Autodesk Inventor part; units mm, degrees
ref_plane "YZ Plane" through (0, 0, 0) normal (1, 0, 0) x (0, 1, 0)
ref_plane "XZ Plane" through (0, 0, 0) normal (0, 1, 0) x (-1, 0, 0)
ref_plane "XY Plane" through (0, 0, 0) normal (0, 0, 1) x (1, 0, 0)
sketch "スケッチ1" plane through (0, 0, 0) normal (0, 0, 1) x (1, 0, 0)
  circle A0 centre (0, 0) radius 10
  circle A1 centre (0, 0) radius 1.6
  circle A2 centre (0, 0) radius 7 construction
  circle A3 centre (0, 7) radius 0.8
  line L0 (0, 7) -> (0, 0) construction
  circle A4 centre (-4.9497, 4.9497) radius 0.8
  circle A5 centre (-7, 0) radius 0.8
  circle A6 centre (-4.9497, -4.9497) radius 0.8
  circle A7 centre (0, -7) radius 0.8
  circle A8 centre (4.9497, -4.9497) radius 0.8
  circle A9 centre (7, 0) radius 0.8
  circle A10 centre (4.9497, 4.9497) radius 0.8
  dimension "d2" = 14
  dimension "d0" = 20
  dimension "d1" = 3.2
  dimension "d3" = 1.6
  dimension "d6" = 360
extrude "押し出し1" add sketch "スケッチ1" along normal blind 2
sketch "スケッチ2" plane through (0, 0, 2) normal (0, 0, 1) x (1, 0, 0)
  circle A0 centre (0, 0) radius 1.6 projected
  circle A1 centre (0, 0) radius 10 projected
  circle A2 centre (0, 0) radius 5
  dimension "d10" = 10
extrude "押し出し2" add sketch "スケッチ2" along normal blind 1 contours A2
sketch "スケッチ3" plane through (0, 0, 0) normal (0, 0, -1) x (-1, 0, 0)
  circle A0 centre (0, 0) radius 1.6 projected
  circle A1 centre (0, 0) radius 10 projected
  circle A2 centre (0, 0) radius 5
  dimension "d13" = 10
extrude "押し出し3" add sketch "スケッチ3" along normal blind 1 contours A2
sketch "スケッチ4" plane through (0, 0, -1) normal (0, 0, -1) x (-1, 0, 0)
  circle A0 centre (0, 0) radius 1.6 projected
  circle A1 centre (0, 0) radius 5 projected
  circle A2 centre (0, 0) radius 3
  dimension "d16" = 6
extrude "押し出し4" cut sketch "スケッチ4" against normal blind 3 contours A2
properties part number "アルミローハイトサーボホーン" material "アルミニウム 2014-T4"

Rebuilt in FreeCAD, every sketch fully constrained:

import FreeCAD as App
import Part
import Sketcher
from FreeCAD import Vector

doc = App.newDocument("Part")
body = doc.addObject("PartDesign::Body", "Body")

# Sketch on XY plane
sketch1 = doc.addObject("Sketcher::SketchObject", "Sketch")
body.addObject(sketch1)
sketch1.AttachmentSupport = (doc.XY_Plane, [""])
sketch1.MapMode = "FlatFace"
sketch1.addGeometry([
    Part.Circle(Vector(0, 0, 0), Vector(0, 0, 1), 10),  # 0
    Part.Circle(Vector(-4.9497, -4.9497, 0), Vector(0, 0, 1), 0.8),  # 1
    Part.Circle(Vector(0, -7, 0), Vector(0, 0, 1), 0.8),  # 2
    Part.Circle(Vector(4.9497, -4.9497, 0), Vector(0, 0, 1), 0.8),  # 3
    Part.Circle(Vector(-7, 0, 0), Vector(0, 0, 1), 0.8),  # 4
    Part.Circle(Vector(-4.9497, 4.9497, 0), Vector(0, 0, 1), 0.8),  # 5
    Part.Circle(Vector(0, 0, 0), Vector(0, 0, 1), 1.6),  # 6
    Part.Circle(Vector(4.9497, 4.9497, 0), Vector(0, 0, 1), 0.8),  # 7
    Part.Circle(Vector(7, 0, 0), Vector(0, 0, 1), 0.8),  # 8
    Part.Circle(Vector(0, 7, 0), Vector(0, 0, 1), 0.8),  # 9
], False)
sketch1.addConstraint([
    Sketcher.Constraint("Coincident", 0, 3, -1, 1),
    Sketcher.Constraint("Coincident", 6, 3, -1, 1),
    Sketcher.Constraint("Equal", 1, 2),
    Sketcher.Constraint("Equal", 2, 3),
    Sketcher.Constraint("Equal", 3, 4),
    Sketcher.Constraint("Equal", 4, 5),
    Sketcher.Constraint("Equal", 5, 7),
    Sketcher.Constraint("Equal", 7, 8),
    Sketcher.Constraint("Equal", 8, 9),
    Sketcher.Constraint("Symmetric", 3, 3, 5, 3, -1, 1),
    Sketcher.Constraint("Symmetric", 1, 3, 7, 3, -1, 1),
    Sketcher.Constraint("Symmetric", 4, 3, 8, 3, -1, 1),
    Sketcher.Constraint("Symmetric", 2, 3, 9, 3, -1, 1),
    Sketcher.Constraint("Symmetric", 1, 3, 3, 3, -2),
    Sketcher.Constraint("PointOnObject", 2, 3, -2),
    Sketcher.Constraint("PointOnObject", 4, 3, -1),
    Sketcher.Constraint("Diameter", 0, 20.0),
    Sketcher.Constraint("Diameter", 1, 1.6),
    Sketcher.Constraint("Diameter", 6, 3.2),
    Sketcher.Constraint("DistanceY", 2, 3, -1, 1, 7.0),
    Sketcher.Constraint("DistanceX", 4, 3, -1, 1, 7.0),
    Sketcher.Constraint("DistanceX", 1, 3, -1, 1, 4.9497),
    Sketcher.Constraint("DistanceY", 1, 3, -1, 1, 4.9497),
])
pad1 = doc.addObject("PartDesign::Pad", "Pad")
body.addObject(pad1)
pad1.Profile = sketch1
pad1.Length = 2

# Sketch on XY plane
sketch2 = doc.addObject("Sketcher::SketchObject", "Sketch001")
body.addObject(sketch2)
sketch2.AttachmentSupport = (doc.XY_Plane, [""])
sketch2.MapMode = "FlatFace"
sketch2.AttachmentOffset = App.Placement(Vector(0, 0, 2), App.Rotation())
sketch2.addGeometry([
    Part.Circle(Vector(0, 0, 0), Vector(0, 0, 1), 5),
    Part.Circle(Vector(0, 0, 0), Vector(0, 0, 1), 1.6),
], False)
sketch2.addConstraint([
    Sketcher.Constraint("Coincident", 0, 3, -1, 1),
    Sketcher.Constraint("Coincident", 1, 3, -1, 1),
    Sketcher.Constraint("Diameter", 0, 10.0),
    Sketcher.Constraint("Diameter", 1, 3.2),
])
pad2 = doc.addObject("PartDesign::Pad", "Pad001")
body.addObject(pad2)
pad2.Profile = sketch2
pad2.Length = 1

# Sketch on XY plane
sketch3 = doc.addObject("Sketcher::SketchObject", "Sketch002")
body.addObject(sketch3)
sketch3.AttachmentSupport = (doc.XY_Plane, [""])
sketch3.MapMode = "FlatFace"
sketch3.addGeometry([
    Part.Circle(Vector(0, 0, 0), Vector(0, 0, 1), 5),
    Part.Circle(Vector(0, 0, 0), Vector(0, 0, 1), 1.6),
], False)
sketch3.addConstraint([
    Sketcher.Constraint("Coincident", 0, 3, -1, 1),
    Sketcher.Constraint("Coincident", 1, 3, -1, 1),
    Sketcher.Constraint("Diameter", 0, 10.0),
    Sketcher.Constraint("Diameter", 1, 3.2),
])
pad3 = doc.addObject("PartDesign::Pad", "Pad002")
body.addObject(pad3)
pad3.Profile = sketch3
pad3.Length = 1
pad3.Reversed = True

# Sketch on XY plane
sketch4 = doc.addObject("Sketcher::SketchObject", "Sketch003")
body.addObject(sketch4)
sketch4.AttachmentSupport = (doc.XY_Plane, [""])
sketch4.MapMode = "FlatFace"
sketch4.AttachmentOffset = App.Placement(Vector(0, 0, -1), App.Rotation())
sketch4.addGeometry([
    Part.Circle(Vector(0, 0, 0), Vector(0, 0, 1), 3),
    Part.Circle(Vector(0, 0, 0), Vector(0, 0, 1), 1.6),
], False)
sketch4.addConstraint([
    Sketcher.Constraint("Coincident", 0, 3, -1, 1),
    Sketcher.Constraint("Coincident", 1, 3, -1, 1),
    Sketcher.Constraint("Diameter", 0, 6.0),
    Sketcher.Constraint("Diameter", 1, 3.2),
])
pocket1 = doc.addObject("PartDesign::Pocket", "Pocket")
body.addObject(pocket1)
pocket1.Profile = sketch4
pocket1.Length = 3
pocket1.Reversed = True

doc.recompute()
